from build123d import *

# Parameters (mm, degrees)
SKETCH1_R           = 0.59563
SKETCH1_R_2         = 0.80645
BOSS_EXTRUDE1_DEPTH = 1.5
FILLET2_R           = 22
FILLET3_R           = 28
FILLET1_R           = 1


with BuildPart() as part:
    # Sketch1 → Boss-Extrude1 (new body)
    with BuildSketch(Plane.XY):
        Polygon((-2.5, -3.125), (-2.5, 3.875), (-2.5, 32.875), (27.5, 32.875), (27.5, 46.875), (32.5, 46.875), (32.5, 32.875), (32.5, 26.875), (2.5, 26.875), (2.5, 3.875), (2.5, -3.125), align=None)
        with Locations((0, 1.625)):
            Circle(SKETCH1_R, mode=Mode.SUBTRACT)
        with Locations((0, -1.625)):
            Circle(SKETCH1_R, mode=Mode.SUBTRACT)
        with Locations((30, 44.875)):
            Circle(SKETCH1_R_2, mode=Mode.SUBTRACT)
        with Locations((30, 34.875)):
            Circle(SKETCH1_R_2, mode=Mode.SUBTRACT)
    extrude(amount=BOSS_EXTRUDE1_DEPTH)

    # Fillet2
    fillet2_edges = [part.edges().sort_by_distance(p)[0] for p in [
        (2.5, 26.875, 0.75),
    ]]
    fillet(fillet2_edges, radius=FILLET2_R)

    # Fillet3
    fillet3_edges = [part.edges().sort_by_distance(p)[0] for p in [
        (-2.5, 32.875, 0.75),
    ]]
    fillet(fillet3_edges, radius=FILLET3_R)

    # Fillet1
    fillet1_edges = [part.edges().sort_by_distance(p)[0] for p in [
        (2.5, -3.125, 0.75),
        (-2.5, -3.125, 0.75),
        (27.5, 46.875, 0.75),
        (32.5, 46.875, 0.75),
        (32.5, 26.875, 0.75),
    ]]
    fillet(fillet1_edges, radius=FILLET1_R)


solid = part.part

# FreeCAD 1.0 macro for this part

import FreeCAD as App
import Part
import Sketcher

V = App.Vector
Q = App.Units.Quantity


def edges_at(feature, points):
    """Names of the edges that pass closest to the given points."""
    edges = feature.Shape.Edges
    near = lambda p: min(range(len(edges)), key=lambda i: edges[i].distToShape(Part.Vertex(*p))[0])
    return sorted({f"Edge{near(p) + 1}" for p in points})

doc = App.newDocument("Part")
body = doc.addObject("PartDesign::Body", "Body")

sketch1 = body.newObject("Sketcher::SketchObject", "Sketch")
sketch1.AttachmentSupport = (doc.getObject("XY_Plane"), [""])
sketch1.MapMode = "FlatFace"
sketch1.addGeometry([
    Part.LineSegment(V(-2.5, 32.9, 0), V(-2.5, -3.1, 0)),
    Part.LineSegment(V(-2.5, -3.1, 0), V(2.5, -3.1, 0)),
    Part.LineSegment(V(2.5, -3.1, 0), V(2.5, 26.9, 0)),
    Part.LineSegment(V(2.5, 26.9, 0), V(32.5, 26.9, 0)),
    Part.LineSegment(V(32.5, 26.9, 0), V(32.5, 46.9, 0)),
    Part.LineSegment(V(32.5, 46.9, 0), V(27.5, 46.9, 0)),
    Part.LineSegment(V(27.5, 46.9, 0), V(27.5, 32.9, 0)),
    Part.LineSegment(V(27.5, 32.9, 0), V(-2.5, 32.9, 0)),
    Part.Circle(V(0, -1.6, 0), V(0, 0, 1), 0.6),
    Part.Circle(V(0, 1.6, 0), V(0, 0, 1), 0.6),
    Part.Circle(V(30, 34.9, 0), V(0, 0, 1), 0.8),
    Part.Circle(V(30, 44.9, 0), V(0, 0, 1), 0.8),
], False)
sketch1.addConstraint([
    Sketcher.Constraint("Coincident", 0, 2, 1, 1),
    Sketcher.Constraint("Coincident", 1, 2, 2, 1),
    Sketcher.Constraint("Coincident", 2, 2, 3, 1),
    Sketcher.Constraint("Coincident", 3, 2, 4, 1),
    Sketcher.Constraint("Coincident", 4, 2, 5, 1),
    Sketcher.Constraint("Coincident", 5, 2, 6, 1),
    Sketcher.Constraint("Coincident", 6, 2, 7, 1),
    Sketcher.Constraint("Coincident", 7, 2, 0, 1),
    Sketcher.Constraint("Vertical", 0),
    Sketcher.Constraint("Horizontal", 1),
    Sketcher.Constraint("Vertical", 2),
    Sketcher.Constraint("Horizontal", 3),
    Sketcher.Constraint("Vertical", 4),
    Sketcher.Constraint("Horizontal", 5),
    Sketcher.Constraint("Vertical", 6),
    Sketcher.Constraint("Horizontal", 7),
    Sketcher.Constraint("Equal", 8, 9),
    Sketcher.Constraint("Equal", 10, 11),
    Sketcher.Constraint("Symmetric", 8, 3, 9, 3, -1, 1),
    Sketcher.Constraint("PointOnObject", 8, 3, -2),
    Sketcher.Constraint("Vertical", 10, 3, 11, 3),
    Sketcher.Constraint("Equal", 1, 5),
    Sketcher.Constraint("Equal", 7, 2),
    Sketcher.Constraint("DistanceX", 1, 1, 1, 2, Q("5 mm")),
    Sketcher.Constraint("DistanceX", 3, 1, 3, 2, Q("30 mm")),
    Sketcher.Constraint("DistanceY", 0, 2, 0, 1, Q("36 mm")),
    Sketcher.Constraint("DistanceY", 4, 1, 4, 2, Q("20 mm")),
    Sketcher.Constraint("DistanceX", -1, 1, 10, 3, Q("30 mm")),
    Sketcher.Constraint("DistanceY", 10, 3, 11, 3, Q("10 mm")),
    Sketcher.Constraint("DistanceY", 0, 2, 10, 3, Q("38 mm")),
    Sketcher.Constraint("Diameter", 10, Q("1.6129 mm")),
    Sketcher.Constraint("DistanceX", 0, 2, -1, 1, Q("2.5 mm")),
    Sketcher.Constraint("DistanceY", 8, 3, 10, 3, Q("36.5 mm")),
    Sketcher.Constraint("Diameter", 8, Q("1.19126 mm")),
    Sketcher.Constraint("DistanceY", 8, 3, 9, 3, Q("3.25 mm")),
])
pad1 = body.newObject("PartDesign::Pad", "Pad")
pad1.Profile = sketch1
pad1.Length = 1.5
doc.recompute()

fillet = body.newObject("PartDesign::Fillet", "Fillet")
fillet.Base = (pad1, edges_at(pad1, [(2.5, 26.875, 0.75)]))
fillet.Radius = 22
doc.recompute()

fillet2 = body.newObject("PartDesign::Fillet", "Fillet001")
fillet2.Base = (fillet, edges_at(fillet, [(-2.5, 32.875, 0.75)]))
fillet2.Radius = 28
doc.recompute()

fillet3 = body.newObject("PartDesign::Fillet", "Fillet002")
fillet3.Base = (fillet2, edges_at(fillet2, [
    (2.5, -3.125, 0.75),
    (-2.5, -3.125, 0.75),
    (27.5, 46.875, 0.75),
    (32.5, 46.875, 0.75),
    (32.5, 26.875, 0.75),
]))
fillet3.Radius = 1

doc.recompute()
